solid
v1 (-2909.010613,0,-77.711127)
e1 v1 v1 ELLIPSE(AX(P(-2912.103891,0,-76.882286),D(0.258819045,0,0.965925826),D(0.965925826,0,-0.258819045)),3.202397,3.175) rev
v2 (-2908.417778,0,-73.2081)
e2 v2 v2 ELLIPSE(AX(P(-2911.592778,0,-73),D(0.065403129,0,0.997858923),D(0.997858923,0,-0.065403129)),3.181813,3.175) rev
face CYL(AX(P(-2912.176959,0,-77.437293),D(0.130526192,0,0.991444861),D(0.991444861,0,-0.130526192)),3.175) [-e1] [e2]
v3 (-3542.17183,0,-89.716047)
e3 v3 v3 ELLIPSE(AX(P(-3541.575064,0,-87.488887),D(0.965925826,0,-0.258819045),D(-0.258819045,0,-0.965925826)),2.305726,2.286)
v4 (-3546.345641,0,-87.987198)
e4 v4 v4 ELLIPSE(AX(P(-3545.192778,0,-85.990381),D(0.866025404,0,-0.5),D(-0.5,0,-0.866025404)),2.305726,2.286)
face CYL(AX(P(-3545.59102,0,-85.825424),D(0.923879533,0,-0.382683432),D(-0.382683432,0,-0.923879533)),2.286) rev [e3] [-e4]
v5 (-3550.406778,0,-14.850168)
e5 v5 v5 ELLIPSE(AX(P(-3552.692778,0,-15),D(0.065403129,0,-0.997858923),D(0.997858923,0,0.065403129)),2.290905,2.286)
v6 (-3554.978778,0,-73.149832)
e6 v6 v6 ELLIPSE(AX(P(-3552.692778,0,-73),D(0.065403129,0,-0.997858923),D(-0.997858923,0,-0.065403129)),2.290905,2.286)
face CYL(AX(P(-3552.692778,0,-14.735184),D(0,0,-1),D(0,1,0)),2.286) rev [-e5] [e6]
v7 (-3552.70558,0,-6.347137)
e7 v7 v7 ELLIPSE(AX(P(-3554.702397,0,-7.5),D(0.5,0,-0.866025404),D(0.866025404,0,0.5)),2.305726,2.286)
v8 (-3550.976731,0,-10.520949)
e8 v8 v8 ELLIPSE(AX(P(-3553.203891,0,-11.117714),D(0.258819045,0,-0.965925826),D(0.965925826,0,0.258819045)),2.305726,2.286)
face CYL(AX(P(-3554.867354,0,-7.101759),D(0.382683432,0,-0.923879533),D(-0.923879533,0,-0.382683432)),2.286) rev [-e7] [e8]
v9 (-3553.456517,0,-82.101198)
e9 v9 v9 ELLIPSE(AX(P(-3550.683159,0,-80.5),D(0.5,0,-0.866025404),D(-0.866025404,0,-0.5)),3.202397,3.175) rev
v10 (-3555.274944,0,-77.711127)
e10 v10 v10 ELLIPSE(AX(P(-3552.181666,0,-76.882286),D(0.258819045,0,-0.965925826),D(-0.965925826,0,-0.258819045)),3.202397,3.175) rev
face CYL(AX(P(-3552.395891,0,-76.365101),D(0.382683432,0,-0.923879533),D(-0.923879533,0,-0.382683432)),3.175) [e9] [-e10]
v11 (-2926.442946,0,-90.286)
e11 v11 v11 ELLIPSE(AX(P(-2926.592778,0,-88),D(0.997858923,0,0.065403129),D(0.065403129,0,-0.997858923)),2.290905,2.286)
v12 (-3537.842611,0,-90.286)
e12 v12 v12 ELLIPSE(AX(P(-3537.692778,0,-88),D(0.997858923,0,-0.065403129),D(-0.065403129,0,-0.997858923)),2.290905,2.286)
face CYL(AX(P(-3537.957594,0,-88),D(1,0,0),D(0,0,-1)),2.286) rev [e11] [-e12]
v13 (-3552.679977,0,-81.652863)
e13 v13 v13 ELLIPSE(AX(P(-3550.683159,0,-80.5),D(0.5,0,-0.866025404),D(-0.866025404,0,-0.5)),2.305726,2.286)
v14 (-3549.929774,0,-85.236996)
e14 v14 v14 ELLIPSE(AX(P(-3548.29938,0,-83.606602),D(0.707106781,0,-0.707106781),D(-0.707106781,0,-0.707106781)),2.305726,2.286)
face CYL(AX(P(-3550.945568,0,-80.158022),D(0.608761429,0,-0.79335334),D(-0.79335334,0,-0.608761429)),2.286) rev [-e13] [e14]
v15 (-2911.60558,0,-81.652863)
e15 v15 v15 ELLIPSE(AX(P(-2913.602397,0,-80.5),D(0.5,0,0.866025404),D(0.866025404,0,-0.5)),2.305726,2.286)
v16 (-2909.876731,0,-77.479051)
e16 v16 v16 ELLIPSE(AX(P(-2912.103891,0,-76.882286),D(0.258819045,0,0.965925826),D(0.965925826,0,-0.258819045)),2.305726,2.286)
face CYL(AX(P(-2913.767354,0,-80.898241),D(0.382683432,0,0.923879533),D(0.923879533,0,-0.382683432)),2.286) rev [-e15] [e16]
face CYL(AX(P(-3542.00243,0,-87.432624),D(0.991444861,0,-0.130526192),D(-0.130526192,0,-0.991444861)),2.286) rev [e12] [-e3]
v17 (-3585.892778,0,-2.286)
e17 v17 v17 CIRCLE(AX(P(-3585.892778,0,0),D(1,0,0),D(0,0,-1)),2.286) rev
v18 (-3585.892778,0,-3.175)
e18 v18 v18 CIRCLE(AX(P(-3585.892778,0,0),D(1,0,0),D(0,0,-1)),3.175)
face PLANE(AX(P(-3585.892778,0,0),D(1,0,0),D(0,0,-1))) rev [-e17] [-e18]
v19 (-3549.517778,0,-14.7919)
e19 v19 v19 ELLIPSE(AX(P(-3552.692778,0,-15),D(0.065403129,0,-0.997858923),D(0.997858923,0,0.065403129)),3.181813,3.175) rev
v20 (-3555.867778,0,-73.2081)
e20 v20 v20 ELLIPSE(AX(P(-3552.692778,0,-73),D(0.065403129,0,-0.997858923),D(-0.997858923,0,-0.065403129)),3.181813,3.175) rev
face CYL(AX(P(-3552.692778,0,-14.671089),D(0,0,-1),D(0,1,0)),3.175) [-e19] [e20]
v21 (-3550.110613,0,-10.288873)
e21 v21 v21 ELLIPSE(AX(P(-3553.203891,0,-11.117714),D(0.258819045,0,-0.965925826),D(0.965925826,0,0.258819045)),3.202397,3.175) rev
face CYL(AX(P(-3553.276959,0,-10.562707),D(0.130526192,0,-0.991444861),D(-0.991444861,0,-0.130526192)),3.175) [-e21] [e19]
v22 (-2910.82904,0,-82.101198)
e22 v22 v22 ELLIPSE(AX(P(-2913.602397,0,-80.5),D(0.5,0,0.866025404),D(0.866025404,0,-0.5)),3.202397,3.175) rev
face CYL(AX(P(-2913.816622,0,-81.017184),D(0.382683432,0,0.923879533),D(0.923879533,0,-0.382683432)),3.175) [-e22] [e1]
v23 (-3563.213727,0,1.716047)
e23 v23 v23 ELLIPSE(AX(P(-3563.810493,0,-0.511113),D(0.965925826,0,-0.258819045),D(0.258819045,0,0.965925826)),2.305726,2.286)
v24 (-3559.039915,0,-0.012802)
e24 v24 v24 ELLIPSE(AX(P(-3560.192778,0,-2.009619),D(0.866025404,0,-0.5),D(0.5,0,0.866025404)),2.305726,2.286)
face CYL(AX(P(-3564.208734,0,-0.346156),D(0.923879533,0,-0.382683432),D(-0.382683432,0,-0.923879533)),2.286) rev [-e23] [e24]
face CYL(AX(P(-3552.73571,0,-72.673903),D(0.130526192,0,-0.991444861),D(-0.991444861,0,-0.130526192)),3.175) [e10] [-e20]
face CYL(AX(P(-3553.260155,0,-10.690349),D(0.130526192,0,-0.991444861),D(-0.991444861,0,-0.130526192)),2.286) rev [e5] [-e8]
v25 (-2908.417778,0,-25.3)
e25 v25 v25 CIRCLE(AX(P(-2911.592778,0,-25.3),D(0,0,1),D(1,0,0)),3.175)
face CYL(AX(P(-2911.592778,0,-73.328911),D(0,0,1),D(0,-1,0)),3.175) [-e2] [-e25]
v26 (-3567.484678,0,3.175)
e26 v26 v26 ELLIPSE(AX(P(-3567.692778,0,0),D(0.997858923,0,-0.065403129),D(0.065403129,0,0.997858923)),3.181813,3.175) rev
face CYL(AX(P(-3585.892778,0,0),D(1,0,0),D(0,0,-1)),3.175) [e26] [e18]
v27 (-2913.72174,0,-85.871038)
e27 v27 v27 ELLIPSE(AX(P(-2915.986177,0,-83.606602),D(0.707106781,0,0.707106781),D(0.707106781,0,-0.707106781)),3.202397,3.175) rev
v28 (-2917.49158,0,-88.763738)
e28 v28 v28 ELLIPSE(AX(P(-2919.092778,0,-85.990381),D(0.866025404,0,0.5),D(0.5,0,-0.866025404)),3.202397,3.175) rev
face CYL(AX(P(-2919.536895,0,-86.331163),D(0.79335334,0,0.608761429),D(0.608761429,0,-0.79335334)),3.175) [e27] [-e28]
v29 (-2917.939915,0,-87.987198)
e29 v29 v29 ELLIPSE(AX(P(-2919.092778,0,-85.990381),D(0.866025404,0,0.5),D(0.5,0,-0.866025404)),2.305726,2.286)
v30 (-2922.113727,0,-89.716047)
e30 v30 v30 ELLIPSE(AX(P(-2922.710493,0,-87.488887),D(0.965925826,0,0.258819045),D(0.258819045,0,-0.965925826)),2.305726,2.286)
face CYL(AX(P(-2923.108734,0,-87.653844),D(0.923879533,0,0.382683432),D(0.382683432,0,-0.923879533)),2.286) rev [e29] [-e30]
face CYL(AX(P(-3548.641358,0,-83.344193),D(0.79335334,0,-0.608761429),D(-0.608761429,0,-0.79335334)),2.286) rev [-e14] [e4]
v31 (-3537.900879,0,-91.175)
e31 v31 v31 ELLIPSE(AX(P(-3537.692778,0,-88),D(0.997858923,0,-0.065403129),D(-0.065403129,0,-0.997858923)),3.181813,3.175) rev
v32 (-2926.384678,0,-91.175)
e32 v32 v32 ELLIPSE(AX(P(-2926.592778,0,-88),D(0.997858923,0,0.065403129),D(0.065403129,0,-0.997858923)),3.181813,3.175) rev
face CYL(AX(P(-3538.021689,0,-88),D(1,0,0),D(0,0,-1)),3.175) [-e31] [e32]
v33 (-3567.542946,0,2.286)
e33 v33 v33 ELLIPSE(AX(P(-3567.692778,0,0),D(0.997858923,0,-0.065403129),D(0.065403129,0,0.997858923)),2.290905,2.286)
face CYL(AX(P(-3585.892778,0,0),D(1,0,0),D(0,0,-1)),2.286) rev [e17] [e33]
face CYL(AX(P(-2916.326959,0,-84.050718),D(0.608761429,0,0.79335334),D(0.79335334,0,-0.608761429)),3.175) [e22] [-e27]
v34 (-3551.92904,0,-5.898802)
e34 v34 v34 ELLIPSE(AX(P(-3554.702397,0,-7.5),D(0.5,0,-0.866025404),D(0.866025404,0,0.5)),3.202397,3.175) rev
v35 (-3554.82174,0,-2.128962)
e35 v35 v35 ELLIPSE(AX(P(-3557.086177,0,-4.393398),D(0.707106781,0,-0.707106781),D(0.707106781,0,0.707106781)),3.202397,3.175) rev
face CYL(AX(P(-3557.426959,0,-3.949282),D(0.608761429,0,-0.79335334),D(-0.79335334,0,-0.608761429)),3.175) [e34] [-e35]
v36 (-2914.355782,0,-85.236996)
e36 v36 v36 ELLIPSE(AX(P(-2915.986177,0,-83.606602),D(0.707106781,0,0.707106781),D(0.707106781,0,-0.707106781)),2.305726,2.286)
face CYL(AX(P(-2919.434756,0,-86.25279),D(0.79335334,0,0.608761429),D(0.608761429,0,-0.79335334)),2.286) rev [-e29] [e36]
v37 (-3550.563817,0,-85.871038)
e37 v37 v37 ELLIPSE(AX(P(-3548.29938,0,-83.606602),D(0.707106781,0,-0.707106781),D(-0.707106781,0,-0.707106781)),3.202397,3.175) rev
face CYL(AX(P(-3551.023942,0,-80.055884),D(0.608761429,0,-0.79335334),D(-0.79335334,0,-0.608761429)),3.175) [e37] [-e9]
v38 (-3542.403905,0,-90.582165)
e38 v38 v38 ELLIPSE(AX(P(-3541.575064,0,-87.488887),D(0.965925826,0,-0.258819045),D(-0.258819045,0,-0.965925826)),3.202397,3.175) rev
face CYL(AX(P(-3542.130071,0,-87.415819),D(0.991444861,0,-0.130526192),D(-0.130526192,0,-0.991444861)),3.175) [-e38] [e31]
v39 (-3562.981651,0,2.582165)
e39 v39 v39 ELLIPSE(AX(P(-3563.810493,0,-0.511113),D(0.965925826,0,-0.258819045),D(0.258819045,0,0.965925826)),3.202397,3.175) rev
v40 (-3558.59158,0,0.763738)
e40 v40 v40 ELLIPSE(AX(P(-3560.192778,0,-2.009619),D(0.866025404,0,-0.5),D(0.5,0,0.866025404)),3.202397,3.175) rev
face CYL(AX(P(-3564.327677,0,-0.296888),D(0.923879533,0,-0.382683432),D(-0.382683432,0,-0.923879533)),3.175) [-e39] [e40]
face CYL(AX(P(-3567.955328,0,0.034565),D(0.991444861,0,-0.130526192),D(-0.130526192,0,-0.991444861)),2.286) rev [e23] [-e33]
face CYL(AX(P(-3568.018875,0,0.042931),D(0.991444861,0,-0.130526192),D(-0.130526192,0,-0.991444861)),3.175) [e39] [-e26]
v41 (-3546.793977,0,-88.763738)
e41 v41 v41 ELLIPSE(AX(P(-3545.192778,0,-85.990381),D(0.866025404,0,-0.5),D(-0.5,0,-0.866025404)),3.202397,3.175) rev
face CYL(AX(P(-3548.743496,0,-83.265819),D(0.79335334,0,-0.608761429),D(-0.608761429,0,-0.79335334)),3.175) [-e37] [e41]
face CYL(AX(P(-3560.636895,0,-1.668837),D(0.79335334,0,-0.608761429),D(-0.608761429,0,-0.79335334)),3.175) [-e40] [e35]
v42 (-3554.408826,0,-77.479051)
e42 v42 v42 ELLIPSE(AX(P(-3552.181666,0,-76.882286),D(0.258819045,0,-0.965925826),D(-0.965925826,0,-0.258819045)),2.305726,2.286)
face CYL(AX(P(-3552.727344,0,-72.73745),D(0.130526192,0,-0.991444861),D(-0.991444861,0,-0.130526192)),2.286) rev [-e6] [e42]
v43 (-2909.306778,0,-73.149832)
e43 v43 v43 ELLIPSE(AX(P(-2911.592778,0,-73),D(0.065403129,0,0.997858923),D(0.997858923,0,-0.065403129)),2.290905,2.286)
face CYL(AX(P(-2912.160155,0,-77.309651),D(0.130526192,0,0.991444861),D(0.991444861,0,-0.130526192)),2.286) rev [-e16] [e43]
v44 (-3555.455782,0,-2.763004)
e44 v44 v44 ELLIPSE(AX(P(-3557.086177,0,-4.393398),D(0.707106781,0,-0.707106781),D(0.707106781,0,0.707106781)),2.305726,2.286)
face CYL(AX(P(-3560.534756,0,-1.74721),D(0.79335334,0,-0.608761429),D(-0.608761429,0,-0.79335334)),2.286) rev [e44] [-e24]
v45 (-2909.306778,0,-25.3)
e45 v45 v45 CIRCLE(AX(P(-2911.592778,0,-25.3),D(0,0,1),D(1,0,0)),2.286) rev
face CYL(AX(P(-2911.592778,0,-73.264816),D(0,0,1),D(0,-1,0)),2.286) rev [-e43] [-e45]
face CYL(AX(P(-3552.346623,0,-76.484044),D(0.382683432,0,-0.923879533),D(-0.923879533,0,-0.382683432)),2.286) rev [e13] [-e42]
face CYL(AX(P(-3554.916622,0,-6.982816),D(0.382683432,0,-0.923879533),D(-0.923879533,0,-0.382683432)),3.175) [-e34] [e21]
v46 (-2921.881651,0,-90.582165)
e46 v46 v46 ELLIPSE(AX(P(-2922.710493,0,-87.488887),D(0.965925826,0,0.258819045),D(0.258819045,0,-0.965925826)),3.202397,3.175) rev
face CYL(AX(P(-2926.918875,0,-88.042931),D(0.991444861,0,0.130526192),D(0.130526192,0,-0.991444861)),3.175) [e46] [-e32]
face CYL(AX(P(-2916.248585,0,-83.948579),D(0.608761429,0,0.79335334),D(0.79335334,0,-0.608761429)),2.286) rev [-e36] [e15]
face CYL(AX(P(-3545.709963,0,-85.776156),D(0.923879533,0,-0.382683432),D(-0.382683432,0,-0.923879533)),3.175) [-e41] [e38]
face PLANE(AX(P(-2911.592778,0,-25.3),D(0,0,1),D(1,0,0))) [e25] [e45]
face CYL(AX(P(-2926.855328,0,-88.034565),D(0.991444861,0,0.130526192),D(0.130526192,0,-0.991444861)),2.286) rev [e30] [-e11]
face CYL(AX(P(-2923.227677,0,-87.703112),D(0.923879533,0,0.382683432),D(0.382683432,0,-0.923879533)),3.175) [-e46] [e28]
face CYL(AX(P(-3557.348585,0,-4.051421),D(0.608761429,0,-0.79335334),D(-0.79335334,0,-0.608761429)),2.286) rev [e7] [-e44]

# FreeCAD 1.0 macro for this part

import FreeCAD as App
import Part
import Sketcher
from FreeCAD import Vector
Q = App.Units.Quantity

doc = App.newDocument("Part")
params = doc.addObject("Spreadsheet::Sheet", "Params")
for row, (alias, value) in enumerate([
    ("sketch1_diameter", "6.35 mm"),
    ("sketch2_height", "58 mm"),
    ("sketch2_width", "18.2 mm"),
    ("sketch2_width2", "611.1 mm"),
    ("sketch2_height2", "47.7 mm"),
], start=1):
    params.set(f"A{row}", alias)
    params.set(f"B{row}", "=" + value)
    params.setAlias(f"B{row}", alias)

body = doc.addObject("PartDesign::Body", "Body")

# Sketch on YZ plane
sketch1 = body.newObject("Sketcher::SketchObject", "Sketch")
sketch1.AttachmentSupport = (doc.getObject("YZ_Plane"), [""])
sketch1.MapMode = "FlatFace"
sketch1.AttachmentOffset = App.Placement(Vector(0, 0, -3585.892778), App.Rotation())
sketch1.addGeometry([
    Part.Circle(Vector(0, 0, 0), Vector(0, 0, 1), 3.2),
    Part.Circle(Vector(0, 0, 0), Vector(0, 0, 1), 2.3),
], False)
sketch1.addConstraint([
    Sketcher.Constraint("Coincident", 0, 3, -1, 1),
    Sketcher.Constraint("Coincident", 1, 3, -1, 1),
    Sketcher.Constraint("Diameter", 0, Q("6.35 mm")),
    Sketcher.Constraint("Diameter", 1, Q("4.572 mm")),
])
sketch1.setExpression("Constraints[2]", "Params.sketch1_diameter")

# Sketch on XZ plane
sketch2 = body.newObject("Sketcher::SketchObject", "Sketch001")
sketch2.AttachmentSupport = (doc.getObject("XZ_Plane"), [""])
sketch2.MapMode = "FlatFace"
sketch2.addGeometry([
    Part.LineSegment(Vector(-3585.9, 0, 0), Vector(-3567.7, 0, 0)),  # 0
    Part.LineSegment(Vector(-3567.7, 0, 0), Vector(-3563.8, -0.5, 0)),  # 1
    Part.LineSegment(Vector(-3563.8, -0.5, 0), Vector(-3560.2, -2, 0)),  # 2
    Part.LineSegment(Vector(-3560.2, -2, 0), Vector(-3557.1, -4.4, 0)),  # 3
    Part.LineSegment(Vector(-3557.1, -4.4, 0), Vector(-3554.7, -7.5, 0)),  # 4
    Part.LineSegment(Vector(-3554.7, -7.5, 0), Vector(-3553.2, -11.1, 0)),  # 5
    Part.LineSegment(Vector(-3553.2, -11.1, 0), Vector(-3552.7, -15, 0)),  # 6
    Part.LineSegment(Vector(-3552.7, -15, 0), Vector(-3552.7, -73, 0)),  # 7
    Part.LineSegment(Vector(-3552.7, -73, 0), Vector(-3552.2, -76.9, 0)),  # 8
    Part.LineSegment(Vector(-3552.2, -76.9, 0), Vector(-3550.7, -80.5, 0)),  # 9
    Part.LineSegment(Vector(-3550.7, -80.5, 0), Vector(-3548.3, -83.6, 0)),  # 10
    Part.LineSegment(Vector(-3548.3, -83.6, 0), Vector(-3545.2, -86, 0)),  # 11
    Part.LineSegment(Vector(-3545.2, -86, 0), Vector(-3541.6, -87.5, 0)),  # 12
    Part.LineSegment(Vector(-3541.6, -87.5, 0), Vector(-3537.7, -88, 0)),  # 13
    Part.LineSegment(Vector(-3537.7, -88, 0), Vector(-2926.6, -88, 0)),  # 14
    Part.LineSegment(Vector(-2926.6, -88, 0), Vector(-2922.7, -87.5, 0)),  # 15
    Part.LineSegment(Vector(-2922.7, -87.5, 0), Vector(-2919.1, -86, 0)),  # 16
    Part.LineSegment(Vector(-2919.1, -86, 0), Vector(-2916, -83.6, 0)),  # 17
    Part.LineSegment(Vector(-2916, -83.6, 0), Vector(-2913.6, -80.5, 0)),  # 18
    Part.LineSegment(Vector(-2913.6, -80.5, 0), Vector(-2912.1, -76.9, 0)),  # 19
    Part.LineSegment(Vector(-2912.1, -76.9, 0), Vector(-2911.6, -73, 0)),  # 20
    Part.LineSegment(Vector(-2911.6, -73, 0), Vector(-2911.6, -25.3, 0)),  # 21
], False)
sketch2.addConstraint([
    Sketcher.Constraint("Coincident", 0, 2, 1, 1),
    Sketcher.Constraint("Coincident", 1, 2, 2, 1),
    Sketcher.Constraint("Coincident", 2, 2, 3, 1),
    Sketcher.Constraint("Coincident", 3, 2, 4, 1),
    Sketcher.Constraint("Coincident", 4, 2, 5, 1),
    Sketcher.Constraint("Coincident", 5, 2, 6, 1),
    Sketcher.Constraint("Coincident", 6, 2, 7, 1),
    Sketcher.Constraint("Coincident", 7, 2, 8, 1),
    Sketcher.Constraint("Coincident", 8, 2, 9, 1),
    Sketcher.Constraint("Coincident", 9, 2, 10, 1),
    Sketcher.Constraint("Coincident", 10, 2, 11, 1),
    Sketcher.Constraint("Coincident", 11, 2, 12, 1),
    Sketcher.Constraint("Coincident", 12, 2, 13, 1),
    Sketcher.Constraint("Coincident", 13, 2, 14, 1),
    Sketcher.Constraint("Coincident", 14, 2, 15, 1),
    Sketcher.Constraint("Coincident", 15, 2, 16, 1),
    Sketcher.Constraint("Coincident", 16, 2, 17, 1),
    Sketcher.Constraint("Coincident", 17, 2, 18, 1),
    Sketcher.Constraint("Coincident", 18, 2, 19, 1),
    Sketcher.Constraint("Coincident", 19, 2, 20, 1),
    Sketcher.Constraint("Coincident", 20, 2, 21, 1),
    Sketcher.Constraint("Horizontal", 0),
    Sketcher.Constraint("Vertical", 7),
    Sketcher.Constraint("Horizontal", 14),
    Sketcher.Constraint("Vertical", 21),
    Sketcher.Constraint("PointOnObject", 0, 1, -1),
    Sketcher.Constraint("Parallel", 6, 8),
    Sketcher.Constraint("Parallel", 5, 9),
    Sketcher.Constraint("Parallel", 4, 10),
    Sketcher.Constraint("Parallel", 3, 11),
    Sketcher.Constraint("Parallel", 2, 12),
    Sketcher.Constraint("Parallel", 1, 13),
    Sketcher.Constraint("Perpendicular", 8, 15),
    Sketcher.Constraint("Perpendicular", 9, 16),
    Sketcher.Constraint("Perpendicular", 10, 17),
    Sketcher.Constraint("Perpendicular", 11, 18),
    Sketcher.Constraint("Perpendicular", 12, 19),
    Sketcher.Constraint("Perpendicular", 13, 20),
    Sketcher.Constraint("Horizontal", 12, 2, 15, 2),
    Sketcher.Constraint("Horizontal", 11, 2, 16, 2),
    Sketcher.Constraint("Horizontal", 10, 2, 17, 2),
    Sketcher.Constraint("Horizontal", 9, 2, 18, 2),
    Sketcher.Constraint("Horizontal", 8, 2, 19, 2),
    Sketcher.Constraint("Horizontal", 7, 2, 20, 2),
    Sketcher.Constraint("Equal", 1, 2),
    Sketcher.Constraint("Equal", 2, 3),
    Sketcher.Constraint("Equal", 3, 4),
    Sketcher.Constraint("Equal", 4, 5),
    Sketcher.Constraint("Equal", 5, 6),
    Sketcher.Constraint("Equal", 6, 8),
    Sketcher.Constraint("Equal", 8, 9),
    Sketcher.Constraint("Equal", 9, 10),
    Sketcher.Constraint("Equal", 10, 11),
    Sketcher.Constraint("Equal", 11, 12),
    Sketcher.Constraint("Equal", 12, 13),
    Sketcher.Constraint("Equal", 13, 15),
    Sketcher.Constraint("Equal", 15, 16),
    Sketcher.Constraint("Equal", 16, 17),
    Sketcher.Constraint("DistanceY", 7, 2, 7, 1, Q("58 mm")),
    Sketcher.Constraint("DistanceX", 0, 1, 0, 2, Q("18.2 mm")),
    Sketcher.Constraint("DistanceX", 14, 1, 14, 2, Q("611.1 mm")),
    Sketcher.Constraint("DistanceY", 21, 1, 21, 2, Q("47.7 mm")),
    Sketcher.Constraint("DistanceY", 6, 2, -1, 1, Q("15 mm")),
    Sketcher.Constraint("Angle", 1, Q("-7.5 deg")),
    Sketcher.Constraint("Angle", 2, Q("-22.5 deg")),
    Sketcher.Constraint("Angle", 3, Q("-37.5 deg")),
    Sketcher.Constraint("DistanceX", 0, 1, -1, 1, Q("3585.892778 mm")),
])
sketch2.setExpression("Constraints[58]", "Params.sketch2_height")
sketch2.setExpression("Constraints[59]", "Params.sketch2_width")
sketch2.setExpression("Constraints[60]", "Params.sketch2_width2")
sketch2.setExpression("Constraints[61]", "Params.sketch2_height2")
doc.recompute()

additivepipe = body.newObject("PartDesign::AdditivePipe", "AdditivePipe")
additivepipe.Profile = sketch1
additivepipe.Spine = (sketch2, ["Edge1", "Edge2", "Edge3", "Edge4", "Edge5", "Edge6", "Edge7", "Edge8", "Edge9", "Edge10", "Edge11", "Edge12", "Edge13", "Edge14", "Edge15", "Edge16", "Edge17", "Edge18", "Edge19", "Edge20", "Edge21", "Edge22"])
additivepipe.Transition = "Right corner"

doc.recompute()
